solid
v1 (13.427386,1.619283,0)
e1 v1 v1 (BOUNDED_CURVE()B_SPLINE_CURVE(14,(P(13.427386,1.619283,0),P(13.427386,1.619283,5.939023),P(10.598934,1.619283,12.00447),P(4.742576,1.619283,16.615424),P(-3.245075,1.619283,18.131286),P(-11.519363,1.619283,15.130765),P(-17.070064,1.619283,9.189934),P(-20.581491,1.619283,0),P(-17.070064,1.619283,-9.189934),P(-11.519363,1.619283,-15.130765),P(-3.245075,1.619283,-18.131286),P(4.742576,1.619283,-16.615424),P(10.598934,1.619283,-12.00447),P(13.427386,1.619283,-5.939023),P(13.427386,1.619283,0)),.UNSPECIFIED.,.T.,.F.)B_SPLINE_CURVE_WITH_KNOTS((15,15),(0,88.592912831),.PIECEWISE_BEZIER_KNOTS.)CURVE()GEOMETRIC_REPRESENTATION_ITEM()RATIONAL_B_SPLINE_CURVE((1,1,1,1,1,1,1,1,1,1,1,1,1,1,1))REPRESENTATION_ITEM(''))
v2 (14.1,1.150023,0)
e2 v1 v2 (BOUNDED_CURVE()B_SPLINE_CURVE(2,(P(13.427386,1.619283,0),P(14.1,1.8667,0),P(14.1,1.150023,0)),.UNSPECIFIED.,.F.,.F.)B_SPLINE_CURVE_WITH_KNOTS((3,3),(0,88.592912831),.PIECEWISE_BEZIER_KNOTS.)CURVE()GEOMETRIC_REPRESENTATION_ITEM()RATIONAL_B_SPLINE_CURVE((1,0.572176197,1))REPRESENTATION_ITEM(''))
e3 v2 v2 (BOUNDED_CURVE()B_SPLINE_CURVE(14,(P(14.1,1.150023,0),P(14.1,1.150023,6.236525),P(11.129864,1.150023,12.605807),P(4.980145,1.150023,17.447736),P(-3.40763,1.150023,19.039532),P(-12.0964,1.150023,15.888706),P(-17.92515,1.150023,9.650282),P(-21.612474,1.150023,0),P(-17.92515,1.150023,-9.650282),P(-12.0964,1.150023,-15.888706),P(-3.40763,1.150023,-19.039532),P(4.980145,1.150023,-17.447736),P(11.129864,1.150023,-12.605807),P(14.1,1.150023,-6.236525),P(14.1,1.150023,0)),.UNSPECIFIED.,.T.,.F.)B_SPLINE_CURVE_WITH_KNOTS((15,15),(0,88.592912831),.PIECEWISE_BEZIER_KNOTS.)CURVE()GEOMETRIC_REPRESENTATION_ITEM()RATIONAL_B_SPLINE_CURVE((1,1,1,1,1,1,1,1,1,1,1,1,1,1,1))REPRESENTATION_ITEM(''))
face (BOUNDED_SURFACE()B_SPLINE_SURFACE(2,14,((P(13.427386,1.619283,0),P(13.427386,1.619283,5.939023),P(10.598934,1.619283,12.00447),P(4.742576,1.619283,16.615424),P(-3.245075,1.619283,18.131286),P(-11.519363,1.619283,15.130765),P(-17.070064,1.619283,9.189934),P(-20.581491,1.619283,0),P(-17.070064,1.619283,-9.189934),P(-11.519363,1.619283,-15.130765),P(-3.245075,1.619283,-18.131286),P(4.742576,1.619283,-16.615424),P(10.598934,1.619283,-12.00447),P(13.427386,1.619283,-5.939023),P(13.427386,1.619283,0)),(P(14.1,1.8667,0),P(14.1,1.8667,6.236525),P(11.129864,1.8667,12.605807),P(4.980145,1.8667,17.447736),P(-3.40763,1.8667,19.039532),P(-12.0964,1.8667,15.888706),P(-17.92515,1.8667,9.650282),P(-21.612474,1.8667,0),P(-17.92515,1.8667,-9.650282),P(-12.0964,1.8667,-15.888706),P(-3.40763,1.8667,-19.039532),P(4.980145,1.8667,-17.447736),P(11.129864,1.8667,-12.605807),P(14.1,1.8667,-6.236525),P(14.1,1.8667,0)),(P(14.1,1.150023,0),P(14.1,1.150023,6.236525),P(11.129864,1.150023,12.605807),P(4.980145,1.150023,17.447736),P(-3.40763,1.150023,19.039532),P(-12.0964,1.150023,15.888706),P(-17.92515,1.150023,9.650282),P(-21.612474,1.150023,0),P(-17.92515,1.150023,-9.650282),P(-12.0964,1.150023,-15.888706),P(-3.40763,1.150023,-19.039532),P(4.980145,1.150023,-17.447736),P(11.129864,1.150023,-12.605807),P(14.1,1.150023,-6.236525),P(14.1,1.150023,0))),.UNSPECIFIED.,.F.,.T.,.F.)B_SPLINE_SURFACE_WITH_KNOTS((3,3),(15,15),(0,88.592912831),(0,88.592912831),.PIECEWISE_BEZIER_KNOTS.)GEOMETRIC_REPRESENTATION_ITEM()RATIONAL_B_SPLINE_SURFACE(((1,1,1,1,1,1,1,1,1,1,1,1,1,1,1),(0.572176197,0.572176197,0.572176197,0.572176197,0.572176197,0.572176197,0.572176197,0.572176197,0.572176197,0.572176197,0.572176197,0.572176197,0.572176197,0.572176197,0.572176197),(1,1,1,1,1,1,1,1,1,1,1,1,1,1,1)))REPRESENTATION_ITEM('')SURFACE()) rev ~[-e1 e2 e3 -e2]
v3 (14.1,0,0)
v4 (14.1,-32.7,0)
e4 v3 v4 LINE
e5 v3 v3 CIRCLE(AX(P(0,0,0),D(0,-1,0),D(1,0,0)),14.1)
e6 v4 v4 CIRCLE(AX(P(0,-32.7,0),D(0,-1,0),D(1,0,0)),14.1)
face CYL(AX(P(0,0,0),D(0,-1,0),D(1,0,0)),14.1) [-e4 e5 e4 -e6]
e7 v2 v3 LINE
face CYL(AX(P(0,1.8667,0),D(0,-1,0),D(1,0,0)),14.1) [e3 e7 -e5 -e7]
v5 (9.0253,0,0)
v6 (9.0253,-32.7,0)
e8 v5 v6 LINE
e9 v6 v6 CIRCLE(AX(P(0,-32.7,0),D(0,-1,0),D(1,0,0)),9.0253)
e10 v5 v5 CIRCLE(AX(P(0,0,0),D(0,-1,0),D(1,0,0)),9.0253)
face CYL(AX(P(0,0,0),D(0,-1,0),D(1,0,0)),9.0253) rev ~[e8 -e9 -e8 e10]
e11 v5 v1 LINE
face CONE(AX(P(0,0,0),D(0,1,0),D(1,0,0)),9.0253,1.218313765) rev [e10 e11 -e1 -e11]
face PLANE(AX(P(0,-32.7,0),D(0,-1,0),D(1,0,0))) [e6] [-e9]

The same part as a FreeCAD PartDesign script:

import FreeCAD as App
import Part
import Sketcher
Q = App.Units.Quantity


def edges_at(feature, points):
    """Names of the edges that pass closest to the given points."""
    edges = feature.Shape.Edges
    near = lambda p: min(range(len(edges)), key=lambda i: edges[i].distToShape(Part.Vertex(*p))[0])
    return sorted({f"Edge{near(p) + 1}" for p in points})


def add_polygon(sketch, points):
    """Adds a closed chain of lines whose ends are joined by coincident constraints."""
    first, n = sketch.GeometryCount, len(points)
    for a, b in zip(points, points[1:] + points[:1]):
        sketch.addGeometry(Part.LineSegment(App.Vector(*a, 0), App.Vector(*b, 0)), False)
    for i in range(n):
        sketch.addConstraint(Sketcher.Constraint("Coincident", first + i, 2, first + (i + 1) % n, 1))

doc = App.newDocument("Part")
params = doc.addObject("Spreadsheet::Sheet", "Params")
for row, (alias, value) in enumerate([
    ("sketch1_height", "32.7 mm"),
    ("revolution_angle", "360 deg"),
    ("fillet_radius", "0.5 mm"),
], start=1):
    params.set(f"A{row}", alias)
    params.set(f"B{row}", "=" + value)
    params.setAlias(f"B{row}", alias)

body = doc.addObject("PartDesign::Body", "Body")

sketch1 = body.newObject("Sketcher::SketchObject", "Sketch")
sketch1.AttachmentSupport = (doc.getObject("XY_Plane"), [""])
sketch1.MapMode = "FlatFace"
add_polygon(sketch1, [(14.1, -32.7), (14.1, 1.8667), (9.0253, 0), (9.0253, -32.7)])
sketch1.addConstraint([
    Sketcher.Constraint("Vertical", 0),
    Sketcher.Constraint("Vertical", 2),
    Sketcher.Constraint("Horizontal", 3),
    Sketcher.Constraint("PointOnObject", 1, 2, -1),
    Sketcher.Constraint("DistanceY", 2, 2, 2, 1, Q("32.7 mm")),
    Sketcher.Constraint("DistanceX", -1, 1, 0, 2, Q("14.1 mm")),
    Sketcher.Constraint("DistanceX", 3, 1, 3, 2, Q("5.0747 mm")),
    Sketcher.Constraint("DistanceY", 0, 1, 0, 2, Q("34.5667 mm")),
])
sketch1.setExpression("Constraints[8]", "Params.sketch1_height")
revolution = body.newObject("PartDesign::Revolution", "Revolution")
revolution.Profile = sketch1
revolution.ReferenceAxis = (sketch1, ["V_Axis"])
revolution.setExpression("Angle", "Params.revolution_angle")
doc.recompute()

fillet = body.newObject("PartDesign::Fillet", "Fillet")
fillet.Base = (revolution, edges_at(revolution, [(-14.1, 1.867, 0)]))
fillet.setExpression("Radius", "Params.fillet_radius")

doc.recompute()
